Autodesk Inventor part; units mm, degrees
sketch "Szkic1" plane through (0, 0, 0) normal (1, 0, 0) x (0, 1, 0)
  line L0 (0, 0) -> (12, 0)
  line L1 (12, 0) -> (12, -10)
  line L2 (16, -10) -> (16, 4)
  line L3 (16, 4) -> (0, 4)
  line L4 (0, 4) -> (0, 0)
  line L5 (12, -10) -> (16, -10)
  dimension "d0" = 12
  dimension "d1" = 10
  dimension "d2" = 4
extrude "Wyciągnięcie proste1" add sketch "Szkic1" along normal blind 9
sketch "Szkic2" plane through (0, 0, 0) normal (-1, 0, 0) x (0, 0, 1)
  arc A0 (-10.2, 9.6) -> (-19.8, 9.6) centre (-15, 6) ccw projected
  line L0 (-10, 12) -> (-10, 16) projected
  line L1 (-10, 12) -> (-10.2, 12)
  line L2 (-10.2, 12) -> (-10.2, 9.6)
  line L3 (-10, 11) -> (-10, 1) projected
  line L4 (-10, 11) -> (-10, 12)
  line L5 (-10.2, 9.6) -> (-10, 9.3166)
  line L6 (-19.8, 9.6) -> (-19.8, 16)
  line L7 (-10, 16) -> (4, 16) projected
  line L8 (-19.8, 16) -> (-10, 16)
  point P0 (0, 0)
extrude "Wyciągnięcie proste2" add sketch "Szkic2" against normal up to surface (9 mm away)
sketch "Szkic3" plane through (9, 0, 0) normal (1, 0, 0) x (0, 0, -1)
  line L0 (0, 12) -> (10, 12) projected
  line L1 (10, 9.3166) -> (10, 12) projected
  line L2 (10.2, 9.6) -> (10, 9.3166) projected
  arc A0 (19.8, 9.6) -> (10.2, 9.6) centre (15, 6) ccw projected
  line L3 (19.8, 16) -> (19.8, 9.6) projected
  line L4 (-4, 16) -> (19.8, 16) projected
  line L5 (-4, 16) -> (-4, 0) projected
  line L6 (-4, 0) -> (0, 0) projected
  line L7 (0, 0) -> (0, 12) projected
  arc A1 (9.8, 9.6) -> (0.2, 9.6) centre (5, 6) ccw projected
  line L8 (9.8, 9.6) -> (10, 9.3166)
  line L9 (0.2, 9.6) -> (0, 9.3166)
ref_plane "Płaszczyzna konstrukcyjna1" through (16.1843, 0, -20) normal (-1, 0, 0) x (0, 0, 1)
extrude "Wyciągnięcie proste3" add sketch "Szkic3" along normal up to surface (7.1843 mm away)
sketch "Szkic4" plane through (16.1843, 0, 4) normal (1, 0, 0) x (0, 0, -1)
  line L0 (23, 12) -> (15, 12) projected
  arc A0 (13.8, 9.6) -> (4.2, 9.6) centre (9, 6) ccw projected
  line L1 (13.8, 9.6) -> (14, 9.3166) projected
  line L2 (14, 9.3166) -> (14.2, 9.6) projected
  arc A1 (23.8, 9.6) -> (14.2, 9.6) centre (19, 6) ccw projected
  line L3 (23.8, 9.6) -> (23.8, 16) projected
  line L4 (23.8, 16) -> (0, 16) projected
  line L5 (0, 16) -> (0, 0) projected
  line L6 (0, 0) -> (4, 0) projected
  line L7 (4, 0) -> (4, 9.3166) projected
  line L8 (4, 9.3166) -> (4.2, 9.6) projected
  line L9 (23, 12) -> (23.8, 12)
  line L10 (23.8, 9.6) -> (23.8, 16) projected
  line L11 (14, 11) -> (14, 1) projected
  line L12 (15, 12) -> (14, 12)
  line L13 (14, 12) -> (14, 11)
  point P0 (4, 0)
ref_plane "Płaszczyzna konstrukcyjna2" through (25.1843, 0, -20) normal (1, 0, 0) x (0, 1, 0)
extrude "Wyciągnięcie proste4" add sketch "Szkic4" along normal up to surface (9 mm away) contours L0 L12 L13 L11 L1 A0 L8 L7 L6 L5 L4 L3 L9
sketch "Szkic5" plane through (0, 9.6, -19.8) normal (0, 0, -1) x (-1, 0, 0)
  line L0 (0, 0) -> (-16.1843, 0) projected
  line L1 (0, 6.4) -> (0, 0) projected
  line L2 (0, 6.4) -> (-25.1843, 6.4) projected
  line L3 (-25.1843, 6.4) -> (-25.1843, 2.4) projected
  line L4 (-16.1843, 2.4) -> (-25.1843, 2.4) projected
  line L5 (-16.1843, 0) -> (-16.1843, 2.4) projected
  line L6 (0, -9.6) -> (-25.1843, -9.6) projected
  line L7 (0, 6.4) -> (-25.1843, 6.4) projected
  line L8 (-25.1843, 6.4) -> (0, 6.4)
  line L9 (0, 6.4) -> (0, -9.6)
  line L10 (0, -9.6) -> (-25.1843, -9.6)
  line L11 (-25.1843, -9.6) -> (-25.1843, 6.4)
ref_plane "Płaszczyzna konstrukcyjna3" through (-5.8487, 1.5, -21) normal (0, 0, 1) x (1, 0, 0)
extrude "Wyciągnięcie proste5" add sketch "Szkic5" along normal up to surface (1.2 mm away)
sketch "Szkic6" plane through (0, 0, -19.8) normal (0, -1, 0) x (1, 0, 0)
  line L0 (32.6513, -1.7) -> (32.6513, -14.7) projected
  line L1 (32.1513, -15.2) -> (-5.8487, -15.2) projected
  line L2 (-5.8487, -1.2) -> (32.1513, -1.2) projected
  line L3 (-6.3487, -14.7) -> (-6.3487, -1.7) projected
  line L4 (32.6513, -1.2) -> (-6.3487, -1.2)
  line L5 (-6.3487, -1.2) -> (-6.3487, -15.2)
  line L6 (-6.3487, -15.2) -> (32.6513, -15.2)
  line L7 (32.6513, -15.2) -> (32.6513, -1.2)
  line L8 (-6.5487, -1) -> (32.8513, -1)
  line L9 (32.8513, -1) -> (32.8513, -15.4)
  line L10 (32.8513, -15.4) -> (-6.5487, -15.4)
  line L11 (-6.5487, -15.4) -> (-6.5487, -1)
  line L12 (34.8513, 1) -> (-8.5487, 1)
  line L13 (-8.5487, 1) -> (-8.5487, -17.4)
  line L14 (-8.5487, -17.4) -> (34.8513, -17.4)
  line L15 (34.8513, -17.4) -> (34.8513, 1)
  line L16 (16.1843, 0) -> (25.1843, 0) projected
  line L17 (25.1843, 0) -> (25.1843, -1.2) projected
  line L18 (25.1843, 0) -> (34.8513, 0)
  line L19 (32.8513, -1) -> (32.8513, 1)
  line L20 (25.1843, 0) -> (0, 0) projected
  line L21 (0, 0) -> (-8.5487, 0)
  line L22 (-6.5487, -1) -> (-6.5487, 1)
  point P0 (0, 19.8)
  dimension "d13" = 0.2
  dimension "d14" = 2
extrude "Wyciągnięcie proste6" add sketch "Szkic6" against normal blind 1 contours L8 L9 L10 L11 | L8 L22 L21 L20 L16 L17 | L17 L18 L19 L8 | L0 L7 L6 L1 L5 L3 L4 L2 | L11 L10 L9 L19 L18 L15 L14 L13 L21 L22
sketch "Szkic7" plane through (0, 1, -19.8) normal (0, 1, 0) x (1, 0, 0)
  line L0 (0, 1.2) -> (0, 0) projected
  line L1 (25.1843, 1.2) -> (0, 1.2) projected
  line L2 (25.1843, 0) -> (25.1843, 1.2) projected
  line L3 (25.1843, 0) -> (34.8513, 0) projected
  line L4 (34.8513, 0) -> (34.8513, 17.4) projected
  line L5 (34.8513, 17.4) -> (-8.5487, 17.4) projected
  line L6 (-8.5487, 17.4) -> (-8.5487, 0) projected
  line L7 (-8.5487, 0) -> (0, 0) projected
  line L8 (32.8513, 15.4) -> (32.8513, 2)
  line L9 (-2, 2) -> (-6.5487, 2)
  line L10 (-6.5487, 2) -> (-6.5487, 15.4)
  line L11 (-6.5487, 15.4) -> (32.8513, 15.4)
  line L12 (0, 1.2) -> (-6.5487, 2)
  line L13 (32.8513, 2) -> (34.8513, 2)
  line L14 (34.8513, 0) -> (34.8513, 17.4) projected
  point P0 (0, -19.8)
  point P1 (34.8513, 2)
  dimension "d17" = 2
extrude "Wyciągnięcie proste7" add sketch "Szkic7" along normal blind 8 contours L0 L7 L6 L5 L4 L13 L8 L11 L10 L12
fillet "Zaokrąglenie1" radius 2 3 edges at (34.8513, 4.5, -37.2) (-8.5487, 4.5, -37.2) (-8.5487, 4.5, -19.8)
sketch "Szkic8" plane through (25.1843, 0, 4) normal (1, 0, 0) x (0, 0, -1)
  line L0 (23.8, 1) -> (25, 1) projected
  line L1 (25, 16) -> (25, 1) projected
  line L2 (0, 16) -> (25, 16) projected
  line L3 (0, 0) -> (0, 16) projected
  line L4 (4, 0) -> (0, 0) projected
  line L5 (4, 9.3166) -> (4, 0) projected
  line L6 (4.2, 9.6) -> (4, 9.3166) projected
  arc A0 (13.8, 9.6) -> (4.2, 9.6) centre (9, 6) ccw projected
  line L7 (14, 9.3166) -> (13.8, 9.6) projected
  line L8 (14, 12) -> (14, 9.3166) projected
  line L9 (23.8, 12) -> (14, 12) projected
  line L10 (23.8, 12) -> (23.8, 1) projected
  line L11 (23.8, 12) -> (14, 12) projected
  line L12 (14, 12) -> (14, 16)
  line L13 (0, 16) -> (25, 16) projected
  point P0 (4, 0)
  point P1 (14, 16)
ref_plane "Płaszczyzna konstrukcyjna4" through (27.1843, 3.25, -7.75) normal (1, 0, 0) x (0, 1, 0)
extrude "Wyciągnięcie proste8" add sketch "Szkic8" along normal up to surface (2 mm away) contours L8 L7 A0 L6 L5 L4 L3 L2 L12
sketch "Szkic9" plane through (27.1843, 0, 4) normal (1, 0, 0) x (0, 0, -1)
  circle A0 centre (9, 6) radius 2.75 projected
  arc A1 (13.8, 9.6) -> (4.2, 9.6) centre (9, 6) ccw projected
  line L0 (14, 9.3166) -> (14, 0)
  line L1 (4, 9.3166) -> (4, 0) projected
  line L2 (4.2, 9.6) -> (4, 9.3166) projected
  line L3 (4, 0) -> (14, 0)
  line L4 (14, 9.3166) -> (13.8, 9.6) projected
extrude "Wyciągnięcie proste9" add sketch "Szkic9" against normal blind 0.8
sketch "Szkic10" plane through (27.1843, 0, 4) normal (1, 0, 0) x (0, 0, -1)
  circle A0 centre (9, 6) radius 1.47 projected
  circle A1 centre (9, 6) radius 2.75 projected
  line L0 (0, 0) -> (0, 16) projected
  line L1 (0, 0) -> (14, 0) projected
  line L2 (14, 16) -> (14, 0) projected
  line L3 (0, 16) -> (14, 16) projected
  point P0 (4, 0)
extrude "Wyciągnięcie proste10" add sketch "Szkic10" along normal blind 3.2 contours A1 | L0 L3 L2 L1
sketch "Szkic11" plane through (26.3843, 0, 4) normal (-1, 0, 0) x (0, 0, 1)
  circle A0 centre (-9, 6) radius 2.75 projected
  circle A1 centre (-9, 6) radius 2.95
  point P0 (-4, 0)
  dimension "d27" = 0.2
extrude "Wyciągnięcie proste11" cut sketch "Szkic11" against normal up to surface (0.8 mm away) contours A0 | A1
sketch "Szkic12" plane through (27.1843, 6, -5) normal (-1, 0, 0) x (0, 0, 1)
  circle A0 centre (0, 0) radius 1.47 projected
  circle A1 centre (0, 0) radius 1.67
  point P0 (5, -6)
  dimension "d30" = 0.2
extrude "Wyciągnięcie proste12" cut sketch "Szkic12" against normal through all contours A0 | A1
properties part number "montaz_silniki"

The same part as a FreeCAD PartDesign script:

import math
import FreeCAD as App
import Part
import Sketcher
from FreeCAD import Vector


def edges_at(feature, points):
    """Names of the edges that pass closest to the given points."""
    edges = feature.Shape.Edges
    near = lambda p: min(range(len(edges)), key=lambda i: edges[i].distToShape(Part.Vertex(*p))[0])
    return sorted({f"Edge{near(p) + 1}" for p in points})

doc = App.newDocument("Part")
params = doc.addObject("Spreadsheet::Sheet", "Params")
for row, (alias, value) in enumerate([
    ("sketch1_width", "12 mm"),
    ("sketch1_width2", "4 mm"),
    ("sketch1_height", "10 mm"),
    ("pad1_length", "9 mm"),
    ("sketch2_radius", "6 mm"),
    ("sketch2_width", "6.4 mm"),
    ("sketch2_height", "9.8 mm"),
    ("pad2_length", "9 mm"),
    ("sketch3_radius", "6 mm"),
    ("sketch3_width", "16 mm"),
    ("sketch3_height", "4 mm"),
    ("sketch3_width2", "6.4 mm"),
    ("sketch3_height2", "23.8 mm"),
    ("pad3_length", "7.1843 mm"),
    ("sketch4_radius", "6 mm"),
    ("sketch4_width", "4 mm"),
    ("sketch4_width2", "16 mm"),
    ("sketch4_height", "9.8 mm"),
    ("sketch4_height2", "23.8 mm"),
    ("pad4_length", "9 mm"),
    ("sketch5_height", "16 mm"),
    ("pad5_length", "1.2 mm"),
    ("sketch6_width", "43.4 mm"),
    ("sketch6_height", "17.4 mm"),
    ("pad6_length", "1 mm"),
    ("sketch7_width", "2 mm"),
    ("sketch7_width2", "39.4 mm"),
    ("sketch7_height", "1.2 mm"),
    ("sketch7_height2", "13.4 mm"),
    ("pad7_length", "8 mm"),
    ("fillet_radius", "2 mm"),
    ("sketch8_radius", "6 mm"),
    ("sketch8_width", "16 mm"),
    ("sketch8_height", "14 mm"),
    ("sketch8_height2", "4 mm"),
    ("pad8_length", "2 mm"),
    ("sketch9_radius", "6 mm"),
    ("sketch9_diameter", "5.5 mm"),
    ("sketch9_height", "10 mm"),
    ("pad9_length", "0.8 mm"),
    ("sketch10_diameter", "2.94 mm"),
    ("sketch10_width", "16 mm"),
    ("sketch10_height", "14 mm"),
    ("pad10_length", "3.2 mm"),
    ("sketch11_diameter", "5.9 mm"),
    ("pocket1_length", "0.8 mm"),
    ("sketch12_diameter", "3.34 mm"),
], start=1):
    params.set(f"A{row}", alias)
    params.set(f"B{row}", "=" + value)
    params.setAlias(f"B{row}", alias)

body = doc.addObject("PartDesign::Body", "Body")

# Sketch on YZ plane
sketch1 = body.newObject("Sketcher::SketchObject", "Sketch")
sketch1.AttachmentSupport = (doc.getObject("YZ_Plane"), [""])
sketch1.MapMode = "FlatFace"
sketch1.addGeometry([
    Part.LineSegment(Vector(0, 4, 0), Vector(0, 0, 0)),  # 0
    Part.LineSegment(Vector(0, 0, 0), Vector(12, 0, 0)),  # 1
    Part.LineSegment(Vector(12, 0, 0), Vector(12, -10, 0)),  # 2
    Part.LineSegment(Vector(12, -10, 0), Vector(16, -10, 0)),  # 3
    Part.LineSegment(Vector(16, -10, 0), Vector(16, 4, 0)),  # 4
    Part.LineSegment(Vector(16, 4, 0), Vector(0, 4, 0)),  # 5
], False)
sketch1.addConstraint([
    Sketcher.Constraint("Coincident", 0, 2, 1, 1),
    Sketcher.Constraint("Coincident", 1, 2, 2, 1),
    Sketcher.Constraint("Coincident", 2, 2, 3, 1),
    Sketcher.Constraint("Coincident", 3, 2, 4, 1),
    Sketcher.Constraint("Coincident", 4, 2, 5, 1),
    Sketcher.Constraint("Coincident", 5, 2, 0, 1),
    Sketcher.Constraint("Vertical", 0),
    Sketcher.Constraint("Horizontal", 1),
    Sketcher.Constraint("Vertical", 2),
    Sketcher.Constraint("Horizontal", 3),
    Sketcher.Constraint("Vertical", 4),
    Sketcher.Constraint("Horizontal", 5),
    Sketcher.Constraint("Coincident", 0, 2, -1, 1),
    Sketcher.Constraint("Equal", 3, 0),
    Sketcher.Constraint("DistanceX", 1, 1, 1, 2, 12.0),
    Sketcher.Constraint("DistanceX", 3, 1, 3, 2, 4.0),
    Sketcher.Constraint("DistanceY", 2, 2, 2, 1, 10.0),
])
sketch1.setExpression("Constraints[14]", "Params.sketch1_width")
sketch1.setExpression("Constraints[15]", "Params.sketch1_width2")
sketch1.setExpression("Constraints[16]", "Params.sketch1_height")
pad1 = body.newObject("PartDesign::Pad", "Pad")
pad1.Profile = sketch1
pad1.setExpression("Length", "Params.pad1_length")

# Sketch on YZ plane
sketch2 = body.newObject("Sketcher::SketchObject", "Sketch001")
sketch2.AttachmentSupport = (doc.getObject("YZ_Plane"), [""])
sketch2.MapMode = "FlatFace"
sketch2.addGeometry([
    Part.ArcOfCircle(Part.Circle(Vector(6, -15, 0), Vector(0, 0, 1), 6), math.radians(-53), math.radians(53)),  # 0
    Part.LineSegment(Vector(9.6, -10.2, 0), Vector(9.32, -10, 0)),  # 1
    Part.LineSegment(Vector(9.32, -10, 0), Vector(16, -10, 0)),  # 2
    Part.LineSegment(Vector(16, -10, 0), Vector(16, -19.8, 0)),  # 3
    Part.LineSegment(Vector(16, -19.8, 0), Vector(9.6, -19.8, 0)),  # 4
], False)
sketch2.addConstraint([
    Sketcher.Constraint("Coincident", 0, 2, 1, 1),
    Sketcher.Constraint("Coincident", 1, 2, 2, 1),
    Sketcher.Constraint("Coincident", 2, 2, 3, 1),
    Sketcher.Constraint("Coincident", 3, 2, 4, 1),
    Sketcher.Constraint("Coincident", 4, 2, 0, 1),
    Sketcher.Constraint("Horizontal", 2),
    Sketcher.Constraint("Vertical", 3),
    Sketcher.Constraint("Horizontal", 4),
    Sketcher.Constraint("Vertical", 0, 2, 4, 2),
    Sketcher.Constraint("Radius", 0, 6.0),
    Sketcher.Constraint("DistanceX", 4, 2, 4, 1, 6.4),
    Sketcher.Constraint("DistanceY", 3, 2, 3, 1, 9.8),
    Sketcher.Constraint("DistanceX", -1, 1, 0, 3, 6.0),
    Sketcher.Constraint("DistanceY", 0, 3, -1, 1, 15.0),
    Sketcher.Constraint("DistanceY", 1, 2, -1, 1, 10.0),
    Sketcher.Constraint("DistanceX", 2, 1, 2, 2, 6.6834),
])
sketch2.setExpression("Constraints[9]", "Params.sketch2_radius")
sketch2.setExpression("Constraints[10]", "Params.sketch2_width")
sketch2.setExpression("Constraints[11]", "Params.sketch2_height")
pad2 = body.newObject("PartDesign::Pad", "Pad001")
pad2.Profile = sketch2
pad2.setExpression("Length", "Params.pad2_length")

# Sketch on YZ plane
sketch3 = body.newObject("Sketcher::SketchObject", "Sketch002")
sketch3.AttachmentSupport = (doc.getObject("YZ_Plane"), [""])
sketch3.MapMode = "FlatFace"
sketch3.AttachmentOffset = App.Placement(Vector(0, 0, 9), App.Rotation())
sketch3.addGeometry([
    Part.LineSegment(Vector(0, 0, 0), Vector(9.32, 0, 0)),  # 0
    Part.LineSegment(Vector(9.32, 0, 0), Vector(9.6, -0.2, 0)),  # 1
    Part.ArcOfCircle(Part.Circle(Vector(6, -5, 0), Vector(0, 0, 1), 6), math.radians(-53), math.radians(53)),  # 2
    Part.LineSegment(Vector(9.6, -9.8, 0), Vector(9.32, -10, 0)),  # 3
    Part.LineSegment(Vector(9.32, -10, 0), Vector(9.6, -10.2, 0)),  # 4
    Part.ArcOfCircle(Part.Circle(Vector(6, -15, 0), Vector(0, 0, 1), 6), math.radians(-53), math.radians(53)),  # 5
    Part.LineSegment(Vector(9.6, -19.8, 0), Vector(16, -19.8, 0)),  # 6
    Part.LineSegment(Vector(16, -19.8, 0), Vector(16, 4, 0)),  # 7
    Part.LineSegment(Vector(16, 4, 0), Vector(0, 4, 0)),  # 8
    Part.LineSegment(Vector(0, 4, 0), Vector(0, 0, 0)),  # 9
], False)
sketch3.addConstraint([
    Sketcher.Constraint("Coincident", 0, 2, 1, 1),
    Sketcher.Constraint("Coincident", 1, 2, 2, 2),
    Sketcher.Constraint("Coincident", 2, 1, 3, 1),
    Sketcher.Constraint("Coincident", 3, 2, 4, 1),
    Sketcher.Constraint("Coincident", 4, 2, 5, 2),
    Sketcher.Constraint("Coincident", 5, 1, 6, 1),
    Sketcher.Constraint("Coincident", 6, 2, 7, 1),
    Sketcher.Constraint("Coincident", 7, 2, 8, 1),
    Sketcher.Constraint("Coincident", 8, 2, 9, 1),
    Sketcher.Constraint("Coincident", 9, 2, 0, 1),
    Sketcher.Constraint("Horizontal", 0),
    Sketcher.Constraint("Horizontal", 6),
    Sketcher.Constraint("Vertical", 7),
    Sketcher.Constraint("Horizontal", 8),
    Sketcher.Constraint("Vertical", 9),
    Sketcher.Constraint("Coincident", 9, 2, -1, 1),
    Sketcher.Constraint("Equal", 2, 5),
    Sketcher.Constraint("Parallel", 1, 4),
    Sketcher.Constraint("Vertical", 2, 3, 5, 3),
    Sketcher.Constraint("Vertical", 1, 2, 2, 1),
    Sketcher.Constraint("Vertical", 0, 2, 3, 2),
    Sketcher.Constraint("Vertical", 2, 1, 4, 2),
    Sketcher.Constraint("Vertical", 4, 2, 5, 1),
    Sketcher.Constraint("Equal", 1, 3),
    Sketcher.Constraint("Radius", 2, 6.0),
    Sketcher.Constraint("DistanceX", 8, 2, 8, 1, 16.0),
    Sketcher.Constraint("DistanceY", 9, 2, 9, 1, 4.0),
    Sketcher.Constraint("DistanceX", 6, 1, 6, 2, 6.4),
    Sketcher.Constraint("DistanceY", 7, 1, 7, 2, 23.8),
    Sketcher.Constraint("DistanceX", -1, 1, 2, 3, 6.0),
    Sketcher.Constraint("DistanceX", 0, 1, 0, 2, 9.3166),
])
sketch3.setExpression("Constraints[24]", "Params.sketch3_radius")
sketch3.setExpression("Constraints[25]", "Params.sketch3_width")
sketch3.setExpression("Constraints[26]", "Params.sketch3_height")
sketch3.setExpression("Constraints[27]", "Params.sketch3_width2")
sketch3.setExpression("Constraints[28]", "Params.sketch3_height2")
pad3 = body.newObject("PartDesign::Pad", "Pad002")
pad3.Profile = sketch3
pad3.setExpression("Length", "Params.pad3_length")

# Sketch on YZ plane
sketch4 = body.newObject("Sketcher::SketchObject", "Sketch003")
sketch4.AttachmentSupport = (doc.getObject("YZ_Plane"), [""])
sketch4.MapMode = "FlatFace"
sketch4.AttachmentOffset = App.Placement(Vector(0, 0, 16.1843), App.Rotation())
sketch4.addGeometry([
    Part.LineSegment(Vector(12, -10, 0), Vector(12, -19.8, 0)),  # 0
    Part.LineSegment(Vector(12, -19.8, 0), Vector(16, -19.8, 0)),  # 1
    Part.LineSegment(Vector(16, -19.8, 0), Vector(16, 4, 0)),  # 2
    Part.LineSegment(Vector(16, 4, 0), Vector(0, 4, 0)),  # 3
    Part.LineSegment(Vector(0, 4, 0), Vector(0, 0, 0)),  # 4
    Part.LineSegment(Vector(0, 0, 0), Vector(9.32, 0, 0)),  # 5
    Part.LineSegment(Vector(9.32, 0, 0), Vector(9.6, -0.2, 0)),  # 6
    Part.ArcOfCircle(Part.Circle(Vector(6, -5, 0), Vector(0, 0, 1), 6), math.radians(-53), math.radians(53)),  # 7
    Part.LineSegment(Vector(9.6, -9.8, 0), Vector(9.32, -10, 0)),  # 8
    Part.LineSegment(Vector(9.32, -10, 0), Vector(12, -10, 0)),  # 9
], False)
sketch4.addConstraint([
    Sketcher.Constraint("Coincident", 0, 2, 1, 1),
    Sketcher.Constraint("Coincident", 1, 2, 2, 1),
    Sketcher.Constraint("Coincident", 2, 2, 3, 1),
    Sketcher.Constraint("Coincident", 3, 2, 4, 1),
    Sketcher.Constraint("Coincident", 4, 2, 5, 1),
    Sketcher.Constraint("Coincident", 5, 2, 6, 1),
    Sketcher.Constraint("Coincident", 6, 2, 7, 2),
    Sketcher.Constraint("Coincident", 7, 1, 8, 1),
    Sketcher.Constraint("Coincident", 8, 2, 9, 1),
    Sketcher.Constraint("Coincident", 9, 2, 0, 1),
    Sketcher.Constraint("Vertical", 0),
    Sketcher.Constraint("Horizontal", 1),
    Sketcher.Constraint("Vertical", 2),
    Sketcher.Constraint("Horizontal", 3),
    Sketcher.Constraint("Vertical", 4),
    Sketcher.Constraint("Horizontal", 5),
    Sketcher.Constraint("Horizontal", 9),
    Sketcher.Constraint("Coincident", 4, 2, -1, 1),
    Sketcher.Constraint("Vertical", 6, 2, 7, 1),
    Sketcher.Constraint("Vertical", 5, 2, 8, 2),
    Sketcher.Constraint("Equal", 1, 4),
    Sketcher.Constraint("Equal", 6, 8),
    Sketcher.Constraint("Radius", 7, 6.0),
    Sketcher.Constraint("DistanceX", 1, 1, 1, 2, 4.0),
    Sketcher.Constraint("DistanceX", 3, 2, 3, 1, 16.0),
    Sketcher.Constraint("DistanceY", 0, 2, 0, 1, 9.8),
    Sketcher.Constraint("DistanceY", 2, 1, 2, 2, 23.8),
    Sketcher.Constraint("DistanceX", -1, 1, 7, 3, 6.0),
    Sketcher.Constraint("DistanceY", 0, 2, 7, 1, 10.0),
    Sketcher.Constraint("DistanceX", 5, 1, 5, 2, 9.3166),
])
sketch4.setExpression("Constraints[22]", "Params.sketch4_radius")
sketch4.setExpression("Constraints[23]", "Params.sketch4_width")
sketch4.setExpression("Constraints[24]", "Params.sketch4_width2")
sketch4.setExpression("Constraints[25]", "Params.sketch4_height")
sketch4.setExpression("Constraints[26]", "Params.sketch4_height2")
pad4 = body.newObject("PartDesign::Pad", "Pad003")
pad4.Profile = sketch4
pad4.setExpression("Length", "Params.pad4_length")

# Sketch on XY plane
sketch5 = body.newObject("Sketcher::SketchObject", "Sketch004")
sketch5.AttachmentSupport = (doc.getObject("XY_Plane"), [""])
sketch5.MapMode = "FlatFace"
sketch5.AttachmentOffset = App.Placement(Vector(0, 0, -19.8), App.Rotation())
sketch5.addGeometry([
    Part.LineSegment(Vector(0, 0, 0), Vector(0, 16, 0)),
    Part.LineSegment(Vector(0, 16, 0), Vector(25, 16, 0)),
    Part.LineSegment(Vector(25, 16, 0), Vector(25, 0, 0)),
    Part.LineSegment(Vector(25, 0, 0), Vector(0, 0, 0)),
], False)
sketch5.addConstraint([
    Sketcher.Constraint("Coincident", 0, 2, 1, 1),
    Sketcher.Constraint("Coincident", 1, 2, 2, 1),
    Sketcher.Constraint("Coincident", 2, 2, 3, 1),
    Sketcher.Constraint("Coincident", 3, 2, 0, 1),
    Sketcher.Constraint("Vertical", 0),
    Sketcher.Constraint("Horizontal", 1),
    Sketcher.Constraint("Vertical", 2),
    Sketcher.Constraint("Horizontal", 3),
    Sketcher.Constraint("Coincident", 3, 2, -1, 1),
    Sketcher.Constraint("DistanceY", 0, 1, 0, 2, 16.0),
    Sketcher.Constraint("DistanceX", 1, 1, 1, 2, 25.1843),
])
sketch5.setExpression("Constraints[9]", "Params.sketch5_height")
pad5 = body.newObject("PartDesign::Pad", "Pad004")
pad5.Profile = sketch5
pad5.setExpression("Length", "Params.pad5_length")
pad5.Reversed = True

# Sketch on XZ plane
sketch6 = body.newObject("Sketcher::SketchObject", "Sketch005")
sketch6.AttachmentSupport = (doc.getObject("XZ_Plane"), [""])
sketch6.MapMode = "FlatFace"
sketch6.addGeometry([
    Part.LineSegment(Vector(-9, -20, 0), Vector(-9, -37, 0)),
    Part.LineSegment(Vector(-9, -37, 0), Vector(35, -37, 0)),
    Part.LineSegment(Vector(35, -37, 0), Vector(35, -20, 0)),
    Part.LineSegment(Vector(35, -20, 0), Vector(-9, -20, 0)),
], False)
sketch6.addConstraint([
    Sketcher.Constraint("Coincident", 0, 2, 1, 1),
    Sketcher.Constraint("Coincident", 1, 2, 2, 1),
    Sketcher.Constraint("Coincident", 2, 2, 3, 1),
    Sketcher.Constraint("Coincident", 3, 2, 0, 1),
    Sketcher.Constraint("Vertical", 0),
    Sketcher.Constraint("Horizontal", 1),
    Sketcher.Constraint("Vertical", 2),
    Sketcher.Constraint("Horizontal", 3),
    Sketcher.Constraint("DistanceX", 1, 1, 1, 2, 43.4),
    Sketcher.Constraint("DistanceY", 0, 2, 0, 1, 17.4),
    Sketcher.Constraint("DistanceY", 0, 2, -1, 1, 37.2),
    Sketcher.Constraint("DistanceX", 0, 2, -1, 1, 8.5487),
])
sketch6.setExpression("Constraints[8]", "Params.sketch6_width")
sketch6.setExpression("Constraints[9]", "Params.sketch6_height")
pad6 = body.newObject("PartDesign::Pad", "Pad005")
pad6.Profile = sketch6
pad6.setExpression("Length", "Params.pad6_length")
pad6.Reversed = True

# Sketch on XZ plane
sketch7 = body.newObject("Sketcher::SketchObject", "Sketch006")
sketch7.AttachmentSupport = (doc.getObject("XZ_Plane"), [""])
sketch7.MapMode = "FlatFace"
sketch7.AttachmentOffset = App.Placement(Vector(0, 0, -1), App.Rotation())
sketch7.addGeometry([
    Part.LineSegment(Vector(0, -19.8, 0), Vector(0, -21, 0)),  # 0
    Part.LineSegment(Vector(0, -21, 0), Vector(-6.5, -21.8, 0)),  # 1
    Part.LineSegment(Vector(-6.5, -21.8, 0), Vector(-6.5, -35.2, 0)),  # 2
    Part.LineSegment(Vector(-6.5, -35.2, 0), Vector(32.9, -35.2, 0)),  # 3
    Part.LineSegment(Vector(32.9, -35.2, 0), Vector(32.9, -21.8, 0)),  # 4
    Part.LineSegment(Vector(32.9, -21.8, 0), Vector(34.9, -21.8, 0)),  # 5
    Part.LineSegment(Vector(34.9, -21.8, 0), Vector(34.9, -37.2, 0)),  # 6
    Part.LineSegment(Vector(34.9, -37.2, 0), Vector(-8.5, -37.2, 0)),  # 7
    Part.LineSegment(Vector(-8.5, -37.2, 0), Vector(-8.5, -19.8, 0)),  # 8
    Part.LineSegment(Vector(-8.5, -19.8, 0), Vector(0, -19.8, 0)),  # 9
], False)
sketch7.addConstraint([
    Sketcher.Constraint("Coincident", 0, 2, 1, 1),
    Sketcher.Constraint("Coincident", 1, 2, 2, 1),
    Sketcher.Constraint("Coincident", 2, 2, 3, 1),
    Sketcher.Constraint("Coincident", 3, 2, 4, 1),
    Sketcher.Constraint("Coincident", 4, 2, 5, 1),
    Sketcher.Constraint("Coincident", 5, 2, 6, 1),
    Sketcher.Constraint("Coincident", 6, 2, 7, 1),
    Sketcher.Constraint("Coincident", 7, 2, 8, 1),
    Sketcher.Constraint("Coincident", 8, 2, 9, 1),
    Sketcher.Constraint("Coincident", 9, 2, 0, 1),
    Sketcher.Constraint("Vertical", 0),
    Sketcher.Constraint("Vertical", 2),
    Sketcher.Constraint("Horizontal", 3),
    Sketcher.Constraint("Vertical", 4),
    Sketcher.Constraint("Horizontal", 5),
    Sketcher.Constraint("Vertical", 6),
    Sketcher.Constraint("Horizontal", 7),
    Sketcher.Constraint("Vertical", 8),
    Sketcher.Constraint("Horizontal", 9),
    Sketcher.Constraint("PointOnObject", 0, 2, -2),
    Sketcher.Constraint("Horizontal", 1, 2, 4, 2),
    Sketcher.Constraint("DistanceX", 5, 1, 5, 2, 2.0),
    Sketcher.Constraint("DistanceY", 6, 2, 3, 2, 2.0),
    Sketcher.Constraint("DistanceX", 7, 2, 2, 2, 2.0),
    Sketcher.Constraint("DistanceY", 1, 2, 8, 2, 2.0),
    Sketcher.Constraint("DistanceX", 3, 1, 3, 2, 39.4),
    Sketcher.Constraint("DistanceY", 0, 2, 0, 1, 1.2),
    Sketcher.Constraint("DistanceY", 2, 2, 2, 1, 13.4),
    Sketcher.Constraint("DistanceY", 0, 2, -1, 1, 21.0),
    Sketcher.Constraint("DistanceX", 9, 1, 9, 2, 8.5487),
])
sketch7.setExpression("Constraints[21]", "Params.sketch7_width")
sketch7.setExpression("Constraints[25]", "Params.sketch7_width2")
sketch7.setExpression("Constraints[26]", "Params.sketch7_height")
sketch7.setExpression("Constraints[27]", "Params.sketch7_height2")
pad7 = body.newObject("PartDesign::Pad", "Pad006")
pad7.Profile = sketch7
pad7.setExpression("Length", "Params.pad7_length")
pad7.Reversed = True
doc.recompute()

fillet = body.newObject("PartDesign::Fillet", "Fillet")
fillet.Base = (pad7, edges_at(pad7, [(34.851, 4.5, -37.2), (-8.549, 4.5, -37.2), (-8.549, 4.5, -19.8)]))
fillet.setExpression("Radius", "Params.fillet_radius")

# Sketch on YZ plane
sketch8 = body.newObject("Sketcher::SketchObject", "Sketch007")
sketch8.AttachmentSupport = (doc.getObject("YZ_Plane"), [""])
sketch8.MapMode = "FlatFace"
sketch8.AttachmentOffset = App.Placement(Vector(0, 0, 25.1843), App.Rotation())
sketch8.addGeometry([
    Part.LineSegment(Vector(9.32, -10, 0), Vector(16, -10, 0)),  # 0
    Part.LineSegment(Vector(16, -10, 0), Vector(16, 4, 0)),  # 1
    Part.LineSegment(Vector(16, 4, 0), Vector(0, 4, 0)),  # 2
    Part.LineSegment(Vector(0, 4, 0), Vector(0, 0, 0)),  # 3
    Part.LineSegment(Vector(0, 0, 0), Vector(9.32, 0, 0)),  # 4
    Part.LineSegment(Vector(9.32, 0, 0), Vector(9.6, -0.2, 0)),  # 5
    Part.ArcOfCircle(Part.Circle(Vector(6, -5, 0), Vector(0, 0, 1), 6), math.radians(-53), math.radians(53)),  # 6
    Part.LineSegment(Vector(9.6, -9.8, 0), Vector(9.32, -10, 0)),  # 7
], False)
sketch8.addConstraint([
    Sketcher.Constraint("Coincident", 0, 2, 1, 1),
    Sketcher.Constraint("Coincident", 1, 2, 2, 1),
    Sketcher.Constraint("Coincident", 2, 2, 3, 1),
    Sketcher.Constraint("Coincident", 3, 2, 4, 1),
    Sketcher.Constraint("Coincident", 4, 2, 5, 1),
    Sketcher.Constraint("Coincident", 5, 2, 6, 2),
    Sketcher.Constraint("Coincident", 6, 1, 7, 1),
    Sketcher.Constraint("Coincident", 7, 2, 0, 1),
    Sketcher.Constraint("Horizontal", 0),
    Sketcher.Constraint("Vertical", 1),
    Sketcher.Constraint("Horizontal", 2),
    Sketcher.Constraint("Vertical", 3),
    Sketcher.Constraint("Horizontal", 4),
    Sketcher.Constraint("Coincident", 3, 2, -1, 1),
    Sketcher.Constraint("Vertical", 5, 2, 6, 1),
    Sketcher.Constraint("Vertical", 4, 2, 7, 2),
    Sketcher.Constraint("Equal", 5, 7),
    Sketcher.Constraint("Radius", 6, 6.0),
    Sketcher.Constraint("DistanceX", 2, 2, 2, 1, 16.0),
    Sketcher.Constraint("DistanceY", 1, 1, 1, 2, 14.0),
    Sketcher.Constraint("DistanceY", 3, 2, 3, 1, 4.0),
    Sketcher.Constraint("DistanceX", -1, 1, 6, 3, 6.0),
    Sketcher.Constraint("DistanceX", -1, 1, 5, 2, 9.6),
    Sketcher.Constraint("DistanceX", 0, 1, 0, 2, 6.6834),
])
sketch8.setExpression("Constraints[17]", "Params.sketch8_radius")
sketch8.setExpression("Constraints[18]", "Params.sketch8_width")
sketch8.setExpression("Constraints[19]", "Params.sketch8_height")
sketch8.setExpression("Constraints[20]", "Params.sketch8_height2")
pad8 = body.newObject("PartDesign::Pad", "Pad007")
pad8.Profile = sketch8
pad8.setExpression("Length", "Params.pad8_length")

# Sketch on YZ plane
sketch9 = body.newObject("Sketcher::SketchObject", "Sketch008")
sketch9.AttachmentSupport = (doc.getObject("YZ_Plane"), [""])
sketch9.MapMode = "FlatFace"
sketch9.AttachmentOffset = App.Placement(Vector(0, 0, 27.1843), App.Rotation())
sketch9.addGeometry([
    Part.LineSegment(Vector(9.32, -10, 0), Vector(9.6, -9.8, 0)),  # 0
    Part.ArcOfCircle(Part.Circle(Vector(6, -5, 0), Vector(0, 0, 1), 6), math.radians(-53), math.radians(53)),  # 1
    Part.LineSegment(Vector(9.6, -0.2, 0), Vector(9.32, 0, 0)),  # 2
    Part.LineSegment(Vector(9.32, 0, 0), Vector(0, 0, 0)),  # 3
    Part.LineSegment(Vector(0, 0, 0), Vector(0, -10, 0)),  # 4
    Part.LineSegment(Vector(0, -10, 0), Vector(9.32, -10, 0)),  # 5
    Part.Circle(Vector(6, -5, 0), Vector(0, 0, 1), 2.75),  # 6
], False)
sketch9.addConstraint([
    Sketcher.Constraint("Coincident", 0, 2, 1, 1),
    Sketcher.Constraint("Coincident", 1, 2, 2, 1),
    Sketcher.Constraint("Coincident", 2, 2, 3, 1),
    Sketcher.Constraint("Coincident", 3, 2, 4, 1),
    Sketcher.Constraint("Coincident", 4, 2, 5, 1),
    Sketcher.Constraint("Coincident", 5, 2, 0, 1),
    Sketcher.Constraint("Horizontal", 3),
    Sketcher.Constraint("Vertical", 4),
    Sketcher.Constraint("Horizontal", 5),
    Sketcher.Constraint("Coincident", 3, 2, -1, 1),
    Sketcher.Constraint("Coincident", 6, 3, 1, 3),
    Sketcher.Constraint("Vertical", 0, 2, 1, 2),
    Sketcher.Constraint("Vertical", 2, 2, 5, 2),
    Sketcher.Constraint("Equal", 0, 2),
    Sketcher.Constraint("Radius", 1, 6.0),
    Sketcher.Constraint("Diameter", 6, 5.5),
    Sketcher.Constraint("DistanceY", 4, 2, 4, 1, 10.0),
    Sketcher.Constraint("DistanceX", -1, 1, 1, 3, 6.0),
    Sketcher.Constraint("DistanceX", -1, 1, 0, 2, 9.6),
    Sketcher.Constraint("DistanceX", 3, 2, 3, 1, 9.3166),
])
sketch9.setExpression("Constraints[14]", "Params.sketch9_radius")
sketch9.setExpression("Constraints[15]", "Params.sketch9_diameter")
sketch9.setExpression("Constraints[16]", "Params.sketch9_height")
pad9 = body.newObject("PartDesign::Pad", "Pad008")
pad9.Profile = sketch9
pad9.setExpression("Length", "Params.pad9_length")
pad9.Reversed = True

# Sketch on YZ plane
sketch10 = body.newObject("Sketcher::SketchObject", "Sketch009")
sketch10.AttachmentSupport = (doc.getObject("YZ_Plane"), [""])
sketch10.MapMode = "FlatFace"
sketch10.AttachmentOffset = App.Placement(Vector(0, 0, 27.1843), App.Rotation())
sketch10.addGeometry([
    Part.LineSegment(Vector(16, 4, 0), Vector(0, 4, 0)),  # 0
    Part.LineSegment(Vector(0, 4, 0), Vector(0, -10, 0)),  # 1
    Part.LineSegment(Vector(0, -10, 0), Vector(16, -10, 0)),  # 2
    Part.LineSegment(Vector(16, -10, 0), Vector(16, 4, 0)),  # 3
    Part.Circle(Vector(6, -5, 0), Vector(0, 0, 1), 1.5),  # 4
], False)
sketch10.addConstraint([
    Sketcher.Constraint("Coincident", 0, 2, 1, 1),
    Sketcher.Constraint("Coincident", 1, 2, 2, 1),
    Sketcher.Constraint("Coincident", 2, 2, 3, 1),
    Sketcher.Constraint("Coincident", 3, 2, 0, 1),
    Sketcher.Constraint("Horizontal", 0),
    Sketcher.Constraint("Vertical", 1),
    Sketcher.Constraint("Horizontal", 2),
    Sketcher.Constraint("Vertical", 3),
    Sketcher.Constraint("PointOnObject", 0, 2, -2),
    Sketcher.Constraint("Diameter", 4, 2.94),
    Sketcher.Constraint("DistanceX", 0, 2, 0, 1, 16.0),
    Sketcher.Constraint("DistanceY", 1, 2, 1, 1, 14.0),
    Sketcher.Constraint("DistanceX", -1, 1, 4, 3, 6.0),
    Sketcher.Constraint("DistanceY", 4, 3, -1, 1, 5.0),
    Sketcher.Constraint("DistanceY", -1, 1, 0, 2, 4.0),
])
sketch10.setExpression("Constraints[9]", "Params.sketch10_diameter")
sketch10.setExpression("Constraints[10]", "Params.sketch10_width")
sketch10.setExpression("Constraints[11]", "Params.sketch10_height")
pad10 = body.newObject("PartDesign::Pad", "Pad009")
pad10.Profile = sketch10
pad10.setExpression("Length", "Params.pad10_length")

# Sketch on YZ plane
sketch11 = body.newObject("Sketcher::SketchObject", "Sketch010")
sketch11.AttachmentSupport = (doc.getObject("YZ_Plane"), [""])
sketch11.MapMode = "FlatFace"
sketch11.AttachmentOffset = App.Placement(Vector(0, 0, 26.3843), App.Rotation())
sketch11.addGeometry(Part.Circle(Vector(6, -5, 0), Vector(0, 0, 1), 3), False)
sketch11.addConstraint([
    Sketcher.Constraint("Diameter", 0, 5.9),
    Sketcher.Constraint("DistanceX", -1, 1, 0, 3, 6.0),
    Sketcher.Constraint("DistanceY", 0, 3, -1, 1, 5.0),
])
sketch11.setExpression("Constraints[0]", "Params.sketch11_diameter")
pocket1 = body.newObject("PartDesign::Pocket", "Pocket")
pocket1.Profile = sketch11
pocket1.setExpression("Length", "Params.pocket1_length")
pocket1.Reversed = True

# Sketch on YZ plane
sketch12 = body.newObject("Sketcher::SketchObject", "Sketch011")
sketch12.AttachmentSupport = (doc.getObject("YZ_Plane"), [""])
sketch12.MapMode = "FlatFace"
sketch12.AttachmentOffset = App.Placement(Vector(0, 0, 27.1843), App.Rotation())
sketch12.addGeometry(Part.Circle(Vector(6, -5, 0), Vector(0, 0, 1), 1.7), False)
sketch12.addConstraint([
    Sketcher.Constraint("Diameter", 0, 3.34),
    Sketcher.Constraint("DistanceX", -1, 1, 0, 3, 6.0),
    Sketcher.Constraint("DistanceY", 0, 3, -1, 1, 5.0),
])
sketch12.setExpression("Constraints[0]", "Params.sketch12_diameter")
pocket2 = body.newObject("PartDesign::Pocket", "Pocket001")
pocket2.Profile = sketch12
pocket2.Type = "ThroughAll"
pocket2.Reversed = True

doc.recompute()
